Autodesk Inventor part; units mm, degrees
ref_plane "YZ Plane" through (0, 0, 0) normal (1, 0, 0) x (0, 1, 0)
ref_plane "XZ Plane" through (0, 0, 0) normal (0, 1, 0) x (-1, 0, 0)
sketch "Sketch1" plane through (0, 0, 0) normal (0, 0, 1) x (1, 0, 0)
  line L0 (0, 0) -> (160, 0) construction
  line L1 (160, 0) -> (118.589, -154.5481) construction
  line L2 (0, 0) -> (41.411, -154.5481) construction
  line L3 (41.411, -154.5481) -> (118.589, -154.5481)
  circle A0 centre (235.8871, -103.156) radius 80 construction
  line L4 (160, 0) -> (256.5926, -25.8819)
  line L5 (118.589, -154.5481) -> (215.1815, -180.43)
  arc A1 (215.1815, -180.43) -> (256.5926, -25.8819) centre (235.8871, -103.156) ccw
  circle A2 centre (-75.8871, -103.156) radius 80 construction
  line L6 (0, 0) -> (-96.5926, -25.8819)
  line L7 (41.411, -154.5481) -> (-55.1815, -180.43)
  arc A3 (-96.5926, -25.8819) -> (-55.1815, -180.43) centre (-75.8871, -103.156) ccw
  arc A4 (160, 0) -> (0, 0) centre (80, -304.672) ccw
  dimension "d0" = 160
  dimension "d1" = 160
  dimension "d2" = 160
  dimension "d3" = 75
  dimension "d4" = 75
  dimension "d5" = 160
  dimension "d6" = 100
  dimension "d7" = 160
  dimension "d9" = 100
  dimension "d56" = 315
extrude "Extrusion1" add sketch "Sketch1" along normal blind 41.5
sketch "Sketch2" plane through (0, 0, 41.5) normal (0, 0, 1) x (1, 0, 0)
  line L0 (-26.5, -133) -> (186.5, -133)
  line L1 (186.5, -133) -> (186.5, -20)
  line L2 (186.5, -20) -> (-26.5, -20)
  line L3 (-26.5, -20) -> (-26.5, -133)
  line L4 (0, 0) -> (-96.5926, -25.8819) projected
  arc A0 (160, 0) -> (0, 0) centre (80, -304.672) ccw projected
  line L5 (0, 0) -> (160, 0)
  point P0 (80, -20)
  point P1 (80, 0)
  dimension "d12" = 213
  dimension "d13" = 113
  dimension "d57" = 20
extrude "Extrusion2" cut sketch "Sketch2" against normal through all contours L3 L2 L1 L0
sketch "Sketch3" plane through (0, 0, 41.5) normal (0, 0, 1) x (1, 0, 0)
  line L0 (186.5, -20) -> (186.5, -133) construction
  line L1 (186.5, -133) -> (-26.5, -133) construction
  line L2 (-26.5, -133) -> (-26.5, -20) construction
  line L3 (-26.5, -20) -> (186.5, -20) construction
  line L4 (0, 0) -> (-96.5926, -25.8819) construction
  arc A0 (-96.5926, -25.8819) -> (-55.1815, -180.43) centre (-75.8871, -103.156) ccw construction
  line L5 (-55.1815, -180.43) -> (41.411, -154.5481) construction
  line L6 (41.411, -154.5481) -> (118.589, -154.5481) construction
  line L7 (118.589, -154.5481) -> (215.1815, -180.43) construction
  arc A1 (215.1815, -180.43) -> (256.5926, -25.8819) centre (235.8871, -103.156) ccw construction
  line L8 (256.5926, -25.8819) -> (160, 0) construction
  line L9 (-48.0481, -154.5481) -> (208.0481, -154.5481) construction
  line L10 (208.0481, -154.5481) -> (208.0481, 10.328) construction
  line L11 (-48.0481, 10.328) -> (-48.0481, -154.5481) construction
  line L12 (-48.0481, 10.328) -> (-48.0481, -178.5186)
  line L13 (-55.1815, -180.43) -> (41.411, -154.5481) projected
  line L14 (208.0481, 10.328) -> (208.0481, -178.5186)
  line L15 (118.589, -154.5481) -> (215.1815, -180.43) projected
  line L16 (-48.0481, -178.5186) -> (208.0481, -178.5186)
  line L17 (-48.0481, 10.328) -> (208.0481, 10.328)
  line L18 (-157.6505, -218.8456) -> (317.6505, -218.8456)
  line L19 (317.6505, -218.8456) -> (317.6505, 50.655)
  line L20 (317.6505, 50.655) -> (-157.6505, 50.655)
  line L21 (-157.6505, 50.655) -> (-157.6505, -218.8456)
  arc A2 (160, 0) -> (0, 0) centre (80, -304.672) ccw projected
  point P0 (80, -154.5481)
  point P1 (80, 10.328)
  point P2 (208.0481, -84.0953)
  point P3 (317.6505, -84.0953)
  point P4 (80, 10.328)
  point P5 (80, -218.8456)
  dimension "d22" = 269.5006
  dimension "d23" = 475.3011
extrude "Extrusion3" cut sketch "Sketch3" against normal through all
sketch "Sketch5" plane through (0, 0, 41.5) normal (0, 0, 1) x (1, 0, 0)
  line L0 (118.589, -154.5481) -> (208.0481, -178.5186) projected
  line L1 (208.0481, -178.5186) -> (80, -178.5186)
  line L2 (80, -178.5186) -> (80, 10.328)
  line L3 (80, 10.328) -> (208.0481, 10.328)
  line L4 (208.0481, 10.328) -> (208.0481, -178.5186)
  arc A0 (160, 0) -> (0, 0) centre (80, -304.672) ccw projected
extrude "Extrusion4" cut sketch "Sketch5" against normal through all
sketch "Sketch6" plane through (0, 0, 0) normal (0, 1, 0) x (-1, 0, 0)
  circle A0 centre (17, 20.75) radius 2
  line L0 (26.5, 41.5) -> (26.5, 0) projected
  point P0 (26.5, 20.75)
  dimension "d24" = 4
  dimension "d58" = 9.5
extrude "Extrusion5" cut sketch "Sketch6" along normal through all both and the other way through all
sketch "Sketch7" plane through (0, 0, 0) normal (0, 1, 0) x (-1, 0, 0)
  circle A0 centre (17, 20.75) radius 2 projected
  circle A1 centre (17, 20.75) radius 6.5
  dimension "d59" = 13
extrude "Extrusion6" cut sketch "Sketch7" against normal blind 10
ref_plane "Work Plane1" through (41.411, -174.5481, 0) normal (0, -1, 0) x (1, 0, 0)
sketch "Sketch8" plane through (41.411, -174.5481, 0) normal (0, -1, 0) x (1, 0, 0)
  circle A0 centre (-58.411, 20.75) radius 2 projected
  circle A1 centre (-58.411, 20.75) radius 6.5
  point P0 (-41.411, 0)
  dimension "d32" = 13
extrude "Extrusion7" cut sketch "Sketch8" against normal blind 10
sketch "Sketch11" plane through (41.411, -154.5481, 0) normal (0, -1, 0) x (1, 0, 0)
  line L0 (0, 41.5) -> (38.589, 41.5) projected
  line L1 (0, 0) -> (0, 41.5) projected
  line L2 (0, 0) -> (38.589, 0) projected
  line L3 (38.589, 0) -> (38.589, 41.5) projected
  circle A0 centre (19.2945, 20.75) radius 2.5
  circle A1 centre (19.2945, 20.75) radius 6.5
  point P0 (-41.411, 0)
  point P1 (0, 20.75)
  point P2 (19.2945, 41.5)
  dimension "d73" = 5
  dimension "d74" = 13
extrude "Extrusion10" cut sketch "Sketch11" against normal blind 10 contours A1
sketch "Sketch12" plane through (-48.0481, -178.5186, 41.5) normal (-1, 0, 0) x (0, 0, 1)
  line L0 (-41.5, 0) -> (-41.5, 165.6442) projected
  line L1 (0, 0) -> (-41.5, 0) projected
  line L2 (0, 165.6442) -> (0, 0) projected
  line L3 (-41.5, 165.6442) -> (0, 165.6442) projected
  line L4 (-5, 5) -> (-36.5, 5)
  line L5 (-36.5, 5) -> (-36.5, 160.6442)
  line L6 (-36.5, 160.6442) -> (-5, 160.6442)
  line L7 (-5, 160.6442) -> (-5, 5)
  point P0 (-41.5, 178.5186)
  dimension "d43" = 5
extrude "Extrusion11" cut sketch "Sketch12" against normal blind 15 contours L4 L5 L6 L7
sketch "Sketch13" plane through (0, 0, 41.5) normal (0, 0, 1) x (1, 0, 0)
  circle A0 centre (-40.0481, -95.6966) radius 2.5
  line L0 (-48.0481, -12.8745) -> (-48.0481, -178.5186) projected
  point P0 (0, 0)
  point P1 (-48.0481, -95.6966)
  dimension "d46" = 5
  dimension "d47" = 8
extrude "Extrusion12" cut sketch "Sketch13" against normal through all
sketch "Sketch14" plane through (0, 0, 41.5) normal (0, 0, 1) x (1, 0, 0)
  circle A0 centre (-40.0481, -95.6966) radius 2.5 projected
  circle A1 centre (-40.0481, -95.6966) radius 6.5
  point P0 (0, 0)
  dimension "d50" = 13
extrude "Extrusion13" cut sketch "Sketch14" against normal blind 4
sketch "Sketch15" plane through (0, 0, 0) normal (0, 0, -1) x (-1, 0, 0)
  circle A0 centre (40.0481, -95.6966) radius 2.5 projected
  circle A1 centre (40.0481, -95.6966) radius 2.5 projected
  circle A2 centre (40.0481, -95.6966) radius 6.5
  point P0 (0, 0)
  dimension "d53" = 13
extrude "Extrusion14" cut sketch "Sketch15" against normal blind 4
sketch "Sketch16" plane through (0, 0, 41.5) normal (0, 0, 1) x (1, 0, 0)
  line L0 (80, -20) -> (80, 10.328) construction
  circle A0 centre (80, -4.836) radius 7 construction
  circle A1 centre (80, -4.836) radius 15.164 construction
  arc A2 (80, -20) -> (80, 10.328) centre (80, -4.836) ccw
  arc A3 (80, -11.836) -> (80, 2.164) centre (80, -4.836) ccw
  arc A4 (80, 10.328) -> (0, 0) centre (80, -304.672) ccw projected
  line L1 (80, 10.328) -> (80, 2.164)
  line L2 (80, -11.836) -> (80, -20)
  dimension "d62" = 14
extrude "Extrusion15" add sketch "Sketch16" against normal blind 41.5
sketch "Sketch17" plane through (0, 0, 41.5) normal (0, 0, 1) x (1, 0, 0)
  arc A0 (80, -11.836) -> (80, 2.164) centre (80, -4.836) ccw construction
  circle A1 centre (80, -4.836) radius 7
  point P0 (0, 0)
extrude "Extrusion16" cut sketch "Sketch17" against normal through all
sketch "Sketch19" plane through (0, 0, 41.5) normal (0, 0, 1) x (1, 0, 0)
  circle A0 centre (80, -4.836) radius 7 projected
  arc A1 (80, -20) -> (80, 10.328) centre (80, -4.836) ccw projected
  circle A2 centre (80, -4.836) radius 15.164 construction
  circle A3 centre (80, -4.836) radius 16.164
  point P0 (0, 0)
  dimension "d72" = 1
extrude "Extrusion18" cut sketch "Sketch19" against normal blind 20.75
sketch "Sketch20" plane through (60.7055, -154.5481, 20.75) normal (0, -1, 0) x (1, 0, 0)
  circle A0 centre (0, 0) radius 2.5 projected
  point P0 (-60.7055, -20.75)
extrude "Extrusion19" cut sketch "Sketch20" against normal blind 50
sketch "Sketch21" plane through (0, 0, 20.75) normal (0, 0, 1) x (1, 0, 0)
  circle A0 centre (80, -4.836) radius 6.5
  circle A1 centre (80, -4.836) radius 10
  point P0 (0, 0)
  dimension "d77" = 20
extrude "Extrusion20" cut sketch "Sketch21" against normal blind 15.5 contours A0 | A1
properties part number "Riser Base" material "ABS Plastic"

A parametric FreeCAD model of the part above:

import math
import FreeCAD as App
import Part
import Sketcher

V = App.Vector
Q = App.Units.Quantity

doc = App.newDocument("Part")
params = doc.addObject("Spreadsheet::Sheet", "Params")
for row, (alias, value) in enumerate([
    ("sketch1_radius", "80 mm"),
    ("sketch1_radius2", "315 mm"),
    ("sketch1_length", "100 mm"),
    ("pad1_length", "41.5 mm"),
    ("sketch2_width", "213 mm"),
    ("sketch2_height", "113 mm"),
    ("sketch5_diameter", "4 mm"),
    ("sketch6_diameter", "13 mm"),
    ("sketch6_diameter2", "4 mm"),
    ("pocket5_length", "10 mm"),
    ("sketch7_diameter", "13 mm"),
    ("sketch7_diameter2", "4 mm"),
    ("pocket6_length", "10 mm"),
    ("sketch8_diameter", "13 mm"),
    ("sketch8_diameter2", "5 mm"),
    ("pocket7_length", "10 mm"),
    ("sketch9_height", "31.5 mm"),
    ("pocket8_length", "15 mm"),
    ("sketch10_diameter", "5 mm"),
    ("sketch11_diameter", "13 mm"),
    ("sketch11_diameter2", "5 mm"),
    ("pocket10_length", "4 mm"),
    ("sketch12_diameter", "13 mm"),
    ("sketch12_diameter2", "5 mm"),
    ("pocket11_length", "4 mm"),
    ("sketch13_radius", "7 mm"),
    ("pad2_length", "41.5 mm"),
    ("sketch14_diameter", "14 mm"),
    ("sketch15_diameter", "14 mm"),
    ("pocket13_length", "20.75 mm"),
    ("sketch16_diameter", "5 mm"),
    ("pocket14_length", "50 mm"),
    ("sketch17_diameter", "20 mm"),
    ("pocket15_length", "15.5 mm"),
], start=1):
    params.set(f"A{row}", alias)
    params.set(f"B{row}", "=" + value)
    params.setAlias(f"B{row}", alias)

body = doc.addObject("PartDesign::Body", "Body")

# Sketch on XY plane
sketch1 = doc.addObject("Sketcher::SketchObject", "Sketch")
body.addObject(sketch1)
sketch1.AttachmentSupport = (doc.XY_Plane, [""])
sketch1.MapMode = "FlatFace"
sketch1.addGeometry(Part.LineSegment(V(-55, -180, 0), V(41, -155, 0)), False)
sketch1.addGeometry(Part.LineSegment(V(41, -155, 0), V(119, -155, 0)), False)
sketch1.addGeometry(Part.LineSegment(V(119, -155, 0), V(215, -180, 0)), False)
sketch1.addGeometry(Part.ArcOfCircle(Part.Circle(V(236, -103, 0), V(0, 0, 1), 80), math.radians(-105), math.radians(75)), False)
sketch1.addGeometry(Part.LineSegment(V(257, -26, 0), V(160, 0, 0)), False)
sketch1.addGeometry(Part.ArcOfCircle(Part.Circle(V(80, -305, 0), V(0, 0, 1), 315), math.radians(75), math.radians(105)), False)
sketch1.addGeometry(Part.LineSegment(V(0, 0, 0), V(-97, -26, 0)), False)
sketch1.addGeometry(Part.ArcOfCircle(Part.Circle(V(-76, -103, 0), V(0, 0, 1), 80), math.radians(105), math.radians(285)), False)
sketch1.addConstraint(Sketcher.Constraint("Coincident", 0, 2, 1, 1))
sketch1.addConstraint(Sketcher.Constraint("Coincident", 1, 2, 2, 1))
sketch1.addConstraint(Sketcher.Constraint("Tangent", 2, 2, 3, 1))
sketch1.addConstraint(Sketcher.Constraint("Tangent", 3, 2, 4, 1))
sketch1.addConstraint(Sketcher.Constraint("Coincident", 4, 2, 5, 1))
sketch1.addConstraint(Sketcher.Constraint("Coincident", 5, 2, 6, 1))
sketch1.addConstraint(Sketcher.Constraint("Tangent", 6, 2, 7, 1))
sketch1.addConstraint(Sketcher.Constraint("Tangent", 7, 2, 0, 1))
sketch1.addConstraint(Sketcher.Constraint("Horizontal", 1))
sketch1.addConstraint(Sketcher.Constraint("Coincident", 5, 2, -1, 1))
sketch1.addConstraint(Sketcher.Constraint("Equal", 3, 7))
sketch1.addConstraint(Sketcher.Constraint("PointOnObject", 4, 2, -1))
sketch1.addConstraint(Sketcher.Constraint("Parallel", 2, 4))
sketch1.addConstraint(Sketcher.Constraint("Parallel", 0, 6))
sketch1.addConstraint(Sketcher.Constraint("Horizontal", 3, 3, 7, 3))
sketch1.addConstraint(Sketcher.Constraint("Horizontal", 3, 2, 6, 2))
sketch1.addConstraint(Sketcher.Constraint("Equal", 2, 4))
sketch1.addConstraint(Sketcher.Constraint("Radius", 3, Q("80 mm")))
sketch1.addConstraint(Sketcher.Constraint("Radius", 5, Q("315 mm")))
sketch1.addConstraint(Sketcher.Constraint("Distance", 0, Q("100 mm")))
sketch1.addConstraint(Sketcher.Constraint("DistanceX", -1, 1, 4, 2, Q("160 mm")))
sketch1.addConstraint(Sketcher.Constraint("Angle", 0, Q("15 deg")))
sketch1.setExpression("Constraints[17]", "Params.sketch1_radius")
sketch1.setExpression("Constraints[18]", "Params.sketch1_radius2")
sketch1.setExpression("Constraints[19]", "Params.sketch1_length")
pad1 = doc.addObject("PartDesign::Pad", "Pad")
body.addObject(pad1)
pad1.Profile = sketch1
pad1.setExpression("Length", "Params.pad1_length")

# Sketch on XY plane
sketch2 = doc.addObject("Sketcher::SketchObject", "Sketch001")
body.addObject(sketch2)
sketch2.AttachmentSupport = (doc.XY_Plane, [""])
sketch2.MapMode = "FlatFace"
sketch2.AttachmentOffset = App.Placement(V(0, 0, 41.5), App.Rotation())
sketch2.addGeometry(Part.LineSegment(V(-26, -20, 0), V(-26, -133, 0)), False)
sketch2.addGeometry(Part.LineSegment(V(-26, -133, 0), V(186, -133, 0)), False)
sketch2.addGeometry(Part.LineSegment(V(186, -133, 0), V(186, -20, 0)), False)
sketch2.addGeometry(Part.LineSegment(V(186, -20, 0), V(-26, -20, 0)), False)
sketch2.addConstraint(Sketcher.Constraint("Coincident", 0, 2, 1, 1))
sketch2.addConstraint(Sketcher.Constraint("Coincident", 1, 2, 2, 1))
sketch2.addConstraint(Sketcher.Constraint("Coincident", 2, 2, 3, 1))
sketch2.addConstraint(Sketcher.Constraint("Coincident", 3, 2, 0, 1))
sketch2.addConstraint(Sketcher.Constraint("Vertical", 0))
sketch2.addConstraint(Sketcher.Constraint("Horizontal", 1))
sketch2.addConstraint(Sketcher.Constraint("Vertical", 2))
sketch2.addConstraint(Sketcher.Constraint("Horizontal", 3))
sketch2.addConstraint(Sketcher.Constraint("DistanceX", 1, 1, 1, 2, Q("213 mm")))
sketch2.addConstraint(Sketcher.Constraint("DistanceY", 0, 2, 0, 1, Q("113 mm")))
sketch2.addConstraint(Sketcher.Constraint("DistanceY", 2, 2, -1, 1, Q("20 mm")))
sketch2.addConstraint(Sketcher.Constraint("DistanceX", 0, 2, -1, 1, Q("26.5 mm")))
sketch2.setExpression("Constraints[8]", "Params.sketch2_width")
sketch2.setExpression("Constraints[9]", "Params.sketch2_height")
pocket1 = doc.addObject("PartDesign::Pocket", "Pocket")
body.addObject(pocket1)
pocket1.Profile = sketch2
pocket1.Type = "ThroughAll"

# Sketch on XY plane
sketch3 = doc.addObject("Sketcher::SketchObject", "Sketch002")
body.addObject(sketch3)
sketch3.AttachmentSupport = (doc.XY_Plane, [""])
sketch3.MapMode = "FlatFace"
sketch3.AttachmentOffset = App.Placement(V(0, 0, 41.5), App.Rotation())
sketch3.addGeometry(Part.LineSegment(V(-158, 51, 0), V(-158, -219, 0)), False)
sketch3.addGeometry(Part.LineSegment(V(-158, -219, 0), V(318, -219, 0)), False)
sketch3.addGeometry(Part.LineSegment(V(318, -219, 0), V(318, 51, 0)), False)
sketch3.addGeometry(Part.LineSegment(V(318, 51, 0), V(-158, 51, 0)), False)
sketch3.addGeometry(Part.LineSegment(V(-48, -179, 0), V(-48, 10, 0)), False)
sketch3.addGeometry(Part.LineSegment(V(-48, 10, 0), V(208, 10, 0)), False)
sketch3.addGeometry(Part.LineSegment(V(208, 10, 0), V(208, -179, 0)), False)
sketch3.addGeometry(Part.LineSegment(V(208, -179, 0), V(-48, -179, 0)), False)
sketch3.addConstraint(Sketcher.Constraint("Coincident", 0, 2, 1, 1))
sketch3.addConstraint(Sketcher.Constraint("Coincident", 1, 2, 2, 1))
sketch3.addConstraint(Sketcher.Constraint("Coincident", 2, 2, 3, 1))
sketch3.addConstraint(Sketcher.Constraint("Coincident", 3, 2, 0, 1))
sketch3.addConstraint(Sketcher.Constraint("Coincident", 4, 2, 5, 1))
sketch3.addConstraint(Sketcher.Constraint("Coincident", 5, 2, 6, 1))
sketch3.addConstraint(Sketcher.Constraint("Coincident", 6, 2, 7, 1))
sketch3.addConstraint(Sketcher.Constraint("Coincident", 7, 2, 4, 1))
sketch3.addConstraint(Sketcher.Constraint("Vertical", 0))
sketch3.addConstraint(Sketcher.Constraint("Horizontal", 1))
sketch3.addConstraint(Sketcher.Constraint("Vertical", 2))
sketch3.addConstraint(Sketcher.Constraint("Horizontal", 3))
sketch3.addConstraint(Sketcher.Constraint("Vertical", 4))
sketch3.addConstraint(Sketcher.Constraint("Horizontal", 5))
sketch3.addConstraint(Sketcher.Constraint("Vertical", 6))
sketch3.addConstraint(Sketcher.Constraint("Horizontal", 7))
sketch3.addConstraint(Sketcher.Constraint("DistanceX", 1, 1, 1, 2, Q("475.301 mm")))
sketch3.addConstraint(Sketcher.Constraint("DistanceY", 0, 2, 0, 1, Q("269.5006 mm")))
sketch3.addConstraint(Sketcher.Constraint("DistanceX", 5, 1, 5, 2, Q("256.0962 mm")))
sketch3.addConstraint(Sketcher.Constraint("DistanceY", 4, 1, 4, 2, Q("188.8466 mm")))
sketch3.addConstraint(Sketcher.Constraint("DistanceY", -1, 1, 2, 2, Q("50.655 mm")))
sketch3.addConstraint(Sketcher.Constraint("DistanceX", 4, 2, -1, 1, Q("48.048 mm")))
sketch3.addConstraint(Sketcher.Constraint("DistanceY", -1, 1, 4, 2, Q("10.328 mm")))
sketch3.addConstraint(Sketcher.Constraint("DistanceX", 0, 2, -1, 1, Q("157.6505 mm")))
pocket2 = doc.addObject("PartDesign::Pocket", "Pocket001")
body.addObject(pocket2)
pocket2.Profile = sketch3
pocket2.Type = "ThroughAll"

# Sketch on XY plane
sketch4 = doc.addObject("Sketcher::SketchObject", "Sketch003")
body.addObject(sketch4)
sketch4.AttachmentSupport = (doc.XY_Plane, [""])
sketch4.MapMode = "FlatFace"
sketch4.AttachmentOffset = App.Placement(V(0, 0, 41.5), App.Rotation())
sketch4.addGeometry(Part.LineSegment(V(80, -179, 0), V(208, -179, 0)), False)
sketch4.addGeometry(Part.LineSegment(V(208, -179, 0), V(208, 10, 0)), False)
sketch4.addGeometry(Part.LineSegment(V(208, 10, 0), V(80, 10, 0)), False)
sketch4.addGeometry(Part.LineSegment(V(80, 10, 0), V(80, -179, 0)), False)
sketch4.addConstraint(Sketcher.Constraint("Coincident", 0, 2, 1, 1))
sketch4.addConstraint(Sketcher.Constraint("Coincident", 1, 2, 2, 1))
sketch4.addConstraint(Sketcher.Constraint("Coincident", 2, 2, 3, 1))
sketch4.addConstraint(Sketcher.Constraint("Coincident", 3, 2, 0, 1))
sketch4.addConstraint(Sketcher.Constraint("Horizontal", 0))
sketch4.addConstraint(Sketcher.Constraint("Vertical", 1))
sketch4.addConstraint(Sketcher.Constraint("Horizontal", 2))
sketch4.addConstraint(Sketcher.Constraint("Vertical", 3))
sketch4.addConstraint(Sketcher.Constraint("DistanceX", -1, 1, 2, 2, Q("80 mm")))
sketch4.addConstraint(Sketcher.Constraint("DistanceX", 0, 1, 0, 2, Q("128.048 mm")))
sketch4.addConstraint(Sketcher.Constraint("DistanceY", 1, 1, 1, 2, Q("188.8466 mm")))
sketch4.addConstraint(Sketcher.Constraint("DistanceY", -1, 1, 1, 2, Q("10.328 mm")))
pocket3 = doc.addObject("PartDesign::Pocket", "Pocket002")
body.addObject(pocket3)
pocket3.Profile = sketch4
pocket3.Type = "ThroughAll"

# Sketch on XZ plane
sketch5 = doc.addObject("Sketcher::SketchObject", "Sketch004")
body.addObject(sketch5)
sketch5.AttachmentSupport = (doc.XZ_Plane, [""])
sketch5.MapMode = "FlatFace"
sketch5.addGeometry(Part.Circle(V(-17, 20.8, 0), V(0, 0, 1), 2), False)
sketch5.addConstraint(Sketcher.Constraint("Diameter", 0, Q("4 mm")))
sketch5.addConstraint(Sketcher.Constraint("DistanceX", 0, 3, -1, 1, Q("17 mm")))
sketch5.addConstraint(Sketcher.Constraint("DistanceY", -1, 1, 0, 3, Q("20.75 mm")))
sketch5.setExpression("Constraints[0]", "Params.sketch5_diameter")
pocket4 = doc.addObject("PartDesign::Pocket", "Pocket003")
body.addObject(pocket4)
pocket4.Profile = sketch5
pocket4.Type = "ThroughAll"
pocket4.Midplane = True

# Sketch on XZ plane
sketch6 = doc.addObject("Sketcher::SketchObject", "Sketch005")
body.addObject(sketch6)
sketch6.AttachmentSupport = (doc.XZ_Plane, [""])
sketch6.MapMode = "FlatFace"
sketch6.addGeometry(Part.Circle(V(-17, 20.8, 0), V(0, 0, 1), 6.5), False)
sketch6.addGeometry(Part.Circle(V(-17, 20.8, 0), V(0, 0, 1), 2), False)
sketch6.addConstraint(Sketcher.Constraint("Coincident", 1, 3, 0, 3))
sketch6.addConstraint(Sketcher.Constraint("Diameter", 0, Q("13 mm")))
sketch6.addConstraint(Sketcher.Constraint("Diameter", 1, Q("4 mm")))
sketch6.addConstraint(Sketcher.Constraint("DistanceX", 0, 3, -1, 1, Q("17 mm")))
sketch6.addConstraint(Sketcher.Constraint("DistanceY", -1, 1, 0, 3, Q("20.75 mm")))
sketch6.setExpression("Constraints[1]", "Params.sketch6_diameter")
sketch6.setExpression("Constraints[2]", "Params.sketch6_diameter2")
pocket5 = doc.addObject("PartDesign::Pocket", "Pocket004")
body.addObject(pocket5)
pocket5.Profile = sketch6
pocket5.setExpression("Length", "Params.pocket5_length")
pocket5.Reversed = True

# Sketch on XZ plane
sketch7 = doc.addObject("Sketcher::SketchObject", "Sketch006")
body.addObject(sketch7)
sketch7.AttachmentSupport = (doc.XZ_Plane, [""])
sketch7.MapMode = "FlatFace"
sketch7.AttachmentOffset = App.Placement(V(0, 0, 174.5481), App.Rotation())
sketch7.addGeometry(Part.Circle(V(-17, 20.8, 0), V(0, 0, 1), 6.5), False)
sketch7.addGeometry(Part.Circle(V(-17, 20.8, 0), V(0, 0, 1), 2), False)
sketch7.addConstraint(Sketcher.Constraint("Coincident", 1, 3, 0, 3))
sketch7.addConstraint(Sketcher.Constraint("Diameter", 0, Q("13 mm")))
sketch7.addConstraint(Sketcher.Constraint("Diameter", 1, Q("4 mm")))
sketch7.addConstraint(Sketcher.Constraint("DistanceX", 0, 3, -1, 1, Q("17 mm")))
sketch7.addConstraint(Sketcher.Constraint("DistanceY", -1, 1, 0, 3, Q("20.75 mm")))
sketch7.setExpression("Constraints[1]", "Params.sketch7_diameter")
sketch7.setExpression("Constraints[2]", "Params.sketch7_diameter2")
pocket6 = doc.addObject("PartDesign::Pocket", "Pocket005")
body.addObject(pocket6)
pocket6.Profile = sketch7
pocket6.setExpression("Length", "Params.pocket6_length")

# Sketch on XZ plane
sketch8 = doc.addObject("Sketcher::SketchObject", "Sketch007")
body.addObject(sketch8)
sketch8.AttachmentSupport = (doc.XZ_Plane, [""])
sketch8.MapMode = "FlatFace"
sketch8.AttachmentOffset = App.Placement(V(0, 0, 154.5481), App.Rotation())
sketch8.addGeometry(Part.Circle(V(60.7, 20.8, 0), V(0, 0, 1), 6.5), False)
sketch8.addGeometry(Part.Circle(V(60.7, 20.8, 0), V(0, 0, 1), 2.5), False)
sketch8.addConstraint(Sketcher.Constraint("Coincident", 1, 3, 0, 3))
sketch8.addConstraint(Sketcher.Constraint("Diameter", 0, Q("13 mm")))
sketch8.addConstraint(Sketcher.Constraint("Diameter", 1, Q("5 mm")))
sketch8.addConstraint(Sketcher.Constraint("DistanceY", -1, 1, 0, 3, Q("20.75 mm")))
sketch8.addConstraint(Sketcher.Constraint("DistanceX", -1, 1, 0, 3, Q("60.7055 mm")))
sketch8.setExpression("Constraints[1]", "Params.sketch8_diameter")
sketch8.setExpression("Constraints[2]", "Params.sketch8_diameter2")
pocket7 = doc.addObject("PartDesign::Pocket", "Pocket006")
body.addObject(pocket7)
pocket7.Profile = sketch8
pocket7.setExpression("Length", "Params.pocket7_length")

# Sketch on YZ plane
sketch9 = doc.addObject("Sketcher::SketchObject", "Sketch008")
body.addObject(sketch9)
sketch9.AttachmentSupport = (doc.YZ_Plane, [""])
sketch9.MapMode = "FlatFace"
sketch9.AttachmentOffset = App.Placement(V(0, 0, -48.0481), App.Rotation())
sketch9.addGeometry(Part.LineSegment(V(-174, 5, 0), V(-174, 36, 0)), False)
sketch9.addGeometry(Part.LineSegment(V(-174, 36, 0), V(-18, 36, 0)), False)
sketch9.addGeometry(Part.LineSegment(V(-18, 36, 0), V(-18, 5, 0)), False)
sketch9.addGeometry(Part.LineSegment(V(-18, 5, 0), V(-174, 5, 0)), False)
sketch9.addConstraint(Sketcher.Constraint("Coincident", 0, 2, 1, 1))
sketch9.addConstraint(Sketcher.Constraint("Coincident", 1, 2, 2, 1))
sketch9.addConstraint(Sketcher.Constraint("Coincident", 2, 2, 3, 1))
sketch9.addConstraint(Sketcher.Constraint("Coincident", 3, 2, 0, 1))
sketch9.addConstraint(Sketcher.Constraint("Vertical", 0))
sketch9.addConstraint(Sketcher.Constraint("Horizontal", 1))
sketch9.addConstraint(Sketcher.Constraint("Vertical", 2))
sketch9.addConstraint(Sketcher.Constraint("Horizontal", 3))
sketch9.addConstraint(Sketcher.Constraint("DistanceY", -1, 1, 2, 2, Q("5 mm")))
sketch9.addConstraint(Sketcher.Constraint("DistanceY", 0, 1, 0, 2, Q("31.5 mm")))
sketch9.addConstraint(Sketcher.Constraint("DistanceX", 1, 1, 1, 2, Q("155.6442 mm")))
sketch9.addConstraint(Sketcher.Constraint("DistanceX", 0, 2, -1, 1, Q("173.5186 mm")))
sketch9.setExpression("Constraints[9]", "Params.sketch9_height")
pocket8 = doc.addObject("PartDesign::Pocket", "Pocket007")
body.addObject(pocket8)
pocket8.Profile = sketch9
pocket8.setExpression("Length", "Params.pocket8_length")
pocket8.Reversed = True

# Sketch on XY plane
sketch10 = doc.addObject("Sketcher::SketchObject", "Sketch009")
body.addObject(sketch10)
sketch10.AttachmentSupport = (doc.XY_Plane, [""])
sketch10.MapMode = "FlatFace"
sketch10.AttachmentOffset = App.Placement(V(0, 0, 41.5), App.Rotation())
sketch10.addGeometry(Part.Circle(V(-40, -95.7, 0), V(0, 0, 1), 2.5), False)
sketch10.addConstraint(Sketcher.Constraint("Diameter", 0, Q("5 mm")))
sketch10.addConstraint(Sketcher.Constraint("DistanceX", 0, 3, -1, 1, Q("40.048 mm")))
sketch10.addConstraint(Sketcher.Constraint("DistanceY", 0, 3, -1, 1, Q("95.6966 mm")))
sketch10.setExpression("Constraints[0]", "Params.sketch10_diameter")
pocket9 = doc.addObject("PartDesign::Pocket", "Pocket008")
body.addObject(pocket9)
pocket9.Profile = sketch10
pocket9.Type = "ThroughAll"

# Sketch on XY plane
sketch11 = doc.addObject("Sketcher::SketchObject", "Sketch010")
body.addObject(sketch11)
sketch11.AttachmentSupport = (doc.XY_Plane, [""])
sketch11.MapMode = "FlatFace"
sketch11.AttachmentOffset = App.Placement(V(0, 0, 41.5), App.Rotation())
sketch11.addGeometry(Part.Circle(V(-40, -95.7, 0), V(0, 0, 1), 6.5), False)
sketch11.addGeometry(Part.Circle(V(-40, -95.7, 0), V(0, 0, 1), 2.5), False)
sketch11.addConstraint(Sketcher.Constraint("Coincident", 1, 3, 0, 3))
sketch11.addConstraint(Sketcher.Constraint("Diameter", 0, Q("13 mm")))
sketch11.addConstraint(Sketcher.Constraint("Diameter", 1, Q("5 mm")))
sketch11.addConstraint(Sketcher.Constraint("DistanceX", 0, 3, -1, 1, Q("40.048 mm")))
sketch11.addConstraint(Sketcher.Constraint("DistanceY", 0, 3, -1, 1, Q("95.6966 mm")))
sketch11.setExpression("Constraints[1]", "Params.sketch11_diameter")
sketch11.setExpression("Constraints[2]", "Params.sketch11_diameter2")
pocket10 = doc.addObject("PartDesign::Pocket", "Pocket009")
body.addObject(pocket10)
pocket10.Profile = sketch11
pocket10.setExpression("Length", "Params.pocket10_length")

# Sketch on XY plane
sketch12 = doc.addObject("Sketcher::SketchObject", "Sketch011")
body.addObject(sketch12)
sketch12.AttachmentSupport = (doc.XY_Plane, [""])
sketch12.MapMode = "FlatFace"
sketch12.addGeometry(Part.Circle(V(-40, -95.7, 0), V(0, 0, 1), 6.5), False)
sketch12.addGeometry(Part.Circle(V(-40, -95.7, 0), V(0, 0, 1), 2.5), False)
sketch12.addConstraint(Sketcher.Constraint("Coincident", 1, 3, 0, 3))
sketch12.addConstraint(Sketcher.Constraint("Diameter", 0, Q("13 mm")))
sketch12.addConstraint(Sketcher.Constraint("Diameter", 1, Q("5 mm")))
sketch12.addConstraint(Sketcher.Constraint("DistanceX", 0, 3, -1, 1, Q("40.048 mm")))
sketch12.addConstraint(Sketcher.Constraint("DistanceY", 0, 3, -1, 1, Q("95.6966 mm")))
sketch12.setExpression("Constraints[1]", "Params.sketch12_diameter")
sketch12.setExpression("Constraints[2]", "Params.sketch12_diameter2")
pocket11 = doc.addObject("PartDesign::Pocket", "Pocket010")
body.addObject(pocket11)
pocket11.Profile = sketch12
pocket11.setExpression("Length", "Params.pocket11_length")
pocket11.Reversed = True

# Sketch on XY plane
sketch13 = doc.addObject("Sketcher::SketchObject", "Sketch012")
body.addObject(sketch13)
sketch13.AttachmentSupport = (doc.XY_Plane, [""])
sketch13.MapMode = "FlatFace"
sketch13.AttachmentOffset = App.Placement(V(0, 0, 41.5), App.Rotation())
sketch13.addGeometry(Part.LineSegment(V(80, -12, 0), V(80, -20, 0)), False)
sketch13.addGeometry(Part.ArcOfCircle(Part.Circle(V(80, -5, 0), V(0, 0, 1), 15), math.radians(-90), math.radians(90)), False)
sketch13.addGeometry(Part.LineSegment(V(80, 10, 0), V(80, 2, 0)), False)
sketch13.addGeometry(Part.ArcOfCircle(Part.Circle(V(80, -5, 0), V(0, 0, 1), 7), math.radians(-90), math.radians(90)), False)
sketch13.addConstraint(Sketcher.Constraint("Coincident", 0, 2, 1, 1))
sketch13.addConstraint(Sketcher.Constraint("Coincident", 1, 2, 2, 1))
sketch13.addConstraint(Sketcher.Constraint("Coincident", 2, 2, 3, 2))
sketch13.addConstraint(Sketcher.Constraint("Coincident", 3, 1, 0, 1))
sketch13.addConstraint(Sketcher.Constraint("Vertical", 0))
sketch13.addConstraint(Sketcher.Constraint("Vertical", 2))
sketch13.addConstraint(Sketcher.Constraint("Coincident", 3, 3, 1, 3))
sketch13.addConstraint(Sketcher.Constraint("Vertical", 3, 3, 0, 2))
sketch13.addConstraint(Sketcher.Constraint("Vertical", 0, 2, 1, 2))
sketch13.addConstraint(Sketcher.Constraint("Radius", 3, Q("7 mm")))
sketch13.addConstraint(Sketcher.Constraint("DistanceX", -1, 1, 1, 3, Q("80 mm")))
sketch13.addConstraint(Sketcher.Constraint("DistanceY", 0, 2, -1, 1, Q("20 mm")))
sketch13.addConstraint(Sketcher.Constraint("Radius", 1, Q("15.164 mm")))
sketch13.setExpression("Constraints[9]", "Params.sketch13_radius")
pad2 = doc.addObject("PartDesign::Pad", "Pad001")
body.addObject(pad2)
pad2.Profile = sketch13
pad2.setExpression("Length", "Params.pad2_length")
pad2.Reversed = True

# Sketch on XY plane
sketch14 = doc.addObject("Sketcher::SketchObject", "Sketch013")
body.addObject(sketch14)
sketch14.AttachmentSupport = (doc.XY_Plane, [""])
sketch14.MapMode = "FlatFace"
sketch14.AttachmentOffset = App.Placement(V(0, 0, 41.5), App.Rotation())
sketch14.addGeometry(Part.Circle(V(80, -5, 0), V(0, 0, 1), 7), False)
sketch14.addConstraint(Sketcher.Constraint("Diameter", 0, Q("14 mm")))
sketch14.addConstraint(Sketcher.Constraint("DistanceX", -1, 1, 0, 3, Q("80 mm")))
sketch14.addConstraint(Sketcher.Constraint("DistanceY", 0, 3, -1, 1, Q("4.836 mm")))
sketch14.setExpression("Constraints[0]", "Params.sketch14_diameter")
pocket12 = doc.addObject("PartDesign::Pocket", "Pocket011")
body.addObject(pocket12)
pocket12.Profile = sketch14
pocket12.Type = "ThroughAll"

# Sketch on XY plane
sketch15 = doc.addObject("Sketcher::SketchObject", "Sketch014")
body.addObject(sketch15)
sketch15.AttachmentSupport = (doc.XY_Plane, [""])
sketch15.MapMode = "FlatFace"
sketch15.AttachmentOffset = App.Placement(V(0, 0, 41.5), App.Rotation())
sketch15.addGeometry(Part.Circle(V(80, -5, 0), V(0, 0, 1), 16), False)
sketch15.addGeometry(Part.Circle(V(80, -5, 0), V(0, 0, 1), 7), False)
sketch15.addConstraint(Sketcher.Constraint("Coincident", 1, 3, 0, 3))
sketch15.addConstraint(Sketcher.Constraint("Diameter", 1, Q("14 mm")))
sketch15.addConstraint(Sketcher.Constraint("Diameter", 0, Q("32.328 mm")))
sketch15.addConstraint(Sketcher.Constraint("DistanceX", -1, 1, 0, 3, Q("80 mm")))
sketch15.addConstraint(Sketcher.Constraint("DistanceY", 0, 3, -1, 1, Q("4.836 mm")))
sketch15.setExpression("Constraints[1]", "Params.sketch15_diameter")
pocket13 = doc.addObject("PartDesign::Pocket", "Pocket012")
body.addObject(pocket13)
pocket13.Profile = sketch15
pocket13.setExpression("Length", "Params.pocket13_length")

# Sketch on XZ plane
sketch16 = doc.addObject("Sketcher::SketchObject", "Sketch015")
body.addObject(sketch16)
sketch16.AttachmentSupport = (doc.XZ_Plane, [""])
sketch16.MapMode = "FlatFace"
sketch16.AttachmentOffset = App.Placement(V(0, 0, 154.5481), App.Rotation())
sketch16.addGeometry(Part.Circle(V(60.7, 20.8, 0), V(0, 0, 1), 2.5), False)
sketch16.addConstraint(Sketcher.Constraint("Diameter", 0, Q("5 mm")))
sketch16.addConstraint(Sketcher.Constraint("DistanceY", -1, 1, 0, 3, Q("20.75 mm")))
sketch16.addConstraint(Sketcher.Constraint("DistanceX", -1, 1, 0, 3, Q("60.7055 mm")))
sketch16.setExpression("Constraints[0]", "Params.sketch16_diameter")
pocket14 = doc.addObject("PartDesign::Pocket", "Pocket013")
body.addObject(pocket14)
pocket14.Profile = sketch16
pocket14.setExpression("Length", "Params.pocket14_length")

# Sketch on XY plane
sketch17 = doc.addObject("Sketcher::SketchObject", "Sketch016")
body.addObject(sketch17)
sketch17.AttachmentSupport = (doc.XY_Plane, [""])
sketch17.MapMode = "FlatFace"
sketch17.AttachmentOffset = App.Placement(V(0, 0, 20.75), App.Rotation())
sketch17.addGeometry(Part.Circle(V(80, -5, 0), V(0, 0, 1), 10), False)
sketch17.addConstraint(Sketcher.Constraint("Diameter", 0, Q("20 mm")))
sketch17.addConstraint(Sketcher.Constraint("DistanceX", -1, 1, 0, 3, Q("80 mm")))
sketch17.addConstraint(Sketcher.Constraint("DistanceY", 0, 3, -1, 1, Q("4.836 mm")))
sketch17.setExpression("Constraints[0]", "Params.sketch17_diameter")
pocket15 = doc.addObject("PartDesign::Pocket", "Pocket014")
body.addObject(pocket15)
pocket15.Profile = sketch17
pocket15.setExpression("Length", "Params.pocket15_length")

doc.recompute()
